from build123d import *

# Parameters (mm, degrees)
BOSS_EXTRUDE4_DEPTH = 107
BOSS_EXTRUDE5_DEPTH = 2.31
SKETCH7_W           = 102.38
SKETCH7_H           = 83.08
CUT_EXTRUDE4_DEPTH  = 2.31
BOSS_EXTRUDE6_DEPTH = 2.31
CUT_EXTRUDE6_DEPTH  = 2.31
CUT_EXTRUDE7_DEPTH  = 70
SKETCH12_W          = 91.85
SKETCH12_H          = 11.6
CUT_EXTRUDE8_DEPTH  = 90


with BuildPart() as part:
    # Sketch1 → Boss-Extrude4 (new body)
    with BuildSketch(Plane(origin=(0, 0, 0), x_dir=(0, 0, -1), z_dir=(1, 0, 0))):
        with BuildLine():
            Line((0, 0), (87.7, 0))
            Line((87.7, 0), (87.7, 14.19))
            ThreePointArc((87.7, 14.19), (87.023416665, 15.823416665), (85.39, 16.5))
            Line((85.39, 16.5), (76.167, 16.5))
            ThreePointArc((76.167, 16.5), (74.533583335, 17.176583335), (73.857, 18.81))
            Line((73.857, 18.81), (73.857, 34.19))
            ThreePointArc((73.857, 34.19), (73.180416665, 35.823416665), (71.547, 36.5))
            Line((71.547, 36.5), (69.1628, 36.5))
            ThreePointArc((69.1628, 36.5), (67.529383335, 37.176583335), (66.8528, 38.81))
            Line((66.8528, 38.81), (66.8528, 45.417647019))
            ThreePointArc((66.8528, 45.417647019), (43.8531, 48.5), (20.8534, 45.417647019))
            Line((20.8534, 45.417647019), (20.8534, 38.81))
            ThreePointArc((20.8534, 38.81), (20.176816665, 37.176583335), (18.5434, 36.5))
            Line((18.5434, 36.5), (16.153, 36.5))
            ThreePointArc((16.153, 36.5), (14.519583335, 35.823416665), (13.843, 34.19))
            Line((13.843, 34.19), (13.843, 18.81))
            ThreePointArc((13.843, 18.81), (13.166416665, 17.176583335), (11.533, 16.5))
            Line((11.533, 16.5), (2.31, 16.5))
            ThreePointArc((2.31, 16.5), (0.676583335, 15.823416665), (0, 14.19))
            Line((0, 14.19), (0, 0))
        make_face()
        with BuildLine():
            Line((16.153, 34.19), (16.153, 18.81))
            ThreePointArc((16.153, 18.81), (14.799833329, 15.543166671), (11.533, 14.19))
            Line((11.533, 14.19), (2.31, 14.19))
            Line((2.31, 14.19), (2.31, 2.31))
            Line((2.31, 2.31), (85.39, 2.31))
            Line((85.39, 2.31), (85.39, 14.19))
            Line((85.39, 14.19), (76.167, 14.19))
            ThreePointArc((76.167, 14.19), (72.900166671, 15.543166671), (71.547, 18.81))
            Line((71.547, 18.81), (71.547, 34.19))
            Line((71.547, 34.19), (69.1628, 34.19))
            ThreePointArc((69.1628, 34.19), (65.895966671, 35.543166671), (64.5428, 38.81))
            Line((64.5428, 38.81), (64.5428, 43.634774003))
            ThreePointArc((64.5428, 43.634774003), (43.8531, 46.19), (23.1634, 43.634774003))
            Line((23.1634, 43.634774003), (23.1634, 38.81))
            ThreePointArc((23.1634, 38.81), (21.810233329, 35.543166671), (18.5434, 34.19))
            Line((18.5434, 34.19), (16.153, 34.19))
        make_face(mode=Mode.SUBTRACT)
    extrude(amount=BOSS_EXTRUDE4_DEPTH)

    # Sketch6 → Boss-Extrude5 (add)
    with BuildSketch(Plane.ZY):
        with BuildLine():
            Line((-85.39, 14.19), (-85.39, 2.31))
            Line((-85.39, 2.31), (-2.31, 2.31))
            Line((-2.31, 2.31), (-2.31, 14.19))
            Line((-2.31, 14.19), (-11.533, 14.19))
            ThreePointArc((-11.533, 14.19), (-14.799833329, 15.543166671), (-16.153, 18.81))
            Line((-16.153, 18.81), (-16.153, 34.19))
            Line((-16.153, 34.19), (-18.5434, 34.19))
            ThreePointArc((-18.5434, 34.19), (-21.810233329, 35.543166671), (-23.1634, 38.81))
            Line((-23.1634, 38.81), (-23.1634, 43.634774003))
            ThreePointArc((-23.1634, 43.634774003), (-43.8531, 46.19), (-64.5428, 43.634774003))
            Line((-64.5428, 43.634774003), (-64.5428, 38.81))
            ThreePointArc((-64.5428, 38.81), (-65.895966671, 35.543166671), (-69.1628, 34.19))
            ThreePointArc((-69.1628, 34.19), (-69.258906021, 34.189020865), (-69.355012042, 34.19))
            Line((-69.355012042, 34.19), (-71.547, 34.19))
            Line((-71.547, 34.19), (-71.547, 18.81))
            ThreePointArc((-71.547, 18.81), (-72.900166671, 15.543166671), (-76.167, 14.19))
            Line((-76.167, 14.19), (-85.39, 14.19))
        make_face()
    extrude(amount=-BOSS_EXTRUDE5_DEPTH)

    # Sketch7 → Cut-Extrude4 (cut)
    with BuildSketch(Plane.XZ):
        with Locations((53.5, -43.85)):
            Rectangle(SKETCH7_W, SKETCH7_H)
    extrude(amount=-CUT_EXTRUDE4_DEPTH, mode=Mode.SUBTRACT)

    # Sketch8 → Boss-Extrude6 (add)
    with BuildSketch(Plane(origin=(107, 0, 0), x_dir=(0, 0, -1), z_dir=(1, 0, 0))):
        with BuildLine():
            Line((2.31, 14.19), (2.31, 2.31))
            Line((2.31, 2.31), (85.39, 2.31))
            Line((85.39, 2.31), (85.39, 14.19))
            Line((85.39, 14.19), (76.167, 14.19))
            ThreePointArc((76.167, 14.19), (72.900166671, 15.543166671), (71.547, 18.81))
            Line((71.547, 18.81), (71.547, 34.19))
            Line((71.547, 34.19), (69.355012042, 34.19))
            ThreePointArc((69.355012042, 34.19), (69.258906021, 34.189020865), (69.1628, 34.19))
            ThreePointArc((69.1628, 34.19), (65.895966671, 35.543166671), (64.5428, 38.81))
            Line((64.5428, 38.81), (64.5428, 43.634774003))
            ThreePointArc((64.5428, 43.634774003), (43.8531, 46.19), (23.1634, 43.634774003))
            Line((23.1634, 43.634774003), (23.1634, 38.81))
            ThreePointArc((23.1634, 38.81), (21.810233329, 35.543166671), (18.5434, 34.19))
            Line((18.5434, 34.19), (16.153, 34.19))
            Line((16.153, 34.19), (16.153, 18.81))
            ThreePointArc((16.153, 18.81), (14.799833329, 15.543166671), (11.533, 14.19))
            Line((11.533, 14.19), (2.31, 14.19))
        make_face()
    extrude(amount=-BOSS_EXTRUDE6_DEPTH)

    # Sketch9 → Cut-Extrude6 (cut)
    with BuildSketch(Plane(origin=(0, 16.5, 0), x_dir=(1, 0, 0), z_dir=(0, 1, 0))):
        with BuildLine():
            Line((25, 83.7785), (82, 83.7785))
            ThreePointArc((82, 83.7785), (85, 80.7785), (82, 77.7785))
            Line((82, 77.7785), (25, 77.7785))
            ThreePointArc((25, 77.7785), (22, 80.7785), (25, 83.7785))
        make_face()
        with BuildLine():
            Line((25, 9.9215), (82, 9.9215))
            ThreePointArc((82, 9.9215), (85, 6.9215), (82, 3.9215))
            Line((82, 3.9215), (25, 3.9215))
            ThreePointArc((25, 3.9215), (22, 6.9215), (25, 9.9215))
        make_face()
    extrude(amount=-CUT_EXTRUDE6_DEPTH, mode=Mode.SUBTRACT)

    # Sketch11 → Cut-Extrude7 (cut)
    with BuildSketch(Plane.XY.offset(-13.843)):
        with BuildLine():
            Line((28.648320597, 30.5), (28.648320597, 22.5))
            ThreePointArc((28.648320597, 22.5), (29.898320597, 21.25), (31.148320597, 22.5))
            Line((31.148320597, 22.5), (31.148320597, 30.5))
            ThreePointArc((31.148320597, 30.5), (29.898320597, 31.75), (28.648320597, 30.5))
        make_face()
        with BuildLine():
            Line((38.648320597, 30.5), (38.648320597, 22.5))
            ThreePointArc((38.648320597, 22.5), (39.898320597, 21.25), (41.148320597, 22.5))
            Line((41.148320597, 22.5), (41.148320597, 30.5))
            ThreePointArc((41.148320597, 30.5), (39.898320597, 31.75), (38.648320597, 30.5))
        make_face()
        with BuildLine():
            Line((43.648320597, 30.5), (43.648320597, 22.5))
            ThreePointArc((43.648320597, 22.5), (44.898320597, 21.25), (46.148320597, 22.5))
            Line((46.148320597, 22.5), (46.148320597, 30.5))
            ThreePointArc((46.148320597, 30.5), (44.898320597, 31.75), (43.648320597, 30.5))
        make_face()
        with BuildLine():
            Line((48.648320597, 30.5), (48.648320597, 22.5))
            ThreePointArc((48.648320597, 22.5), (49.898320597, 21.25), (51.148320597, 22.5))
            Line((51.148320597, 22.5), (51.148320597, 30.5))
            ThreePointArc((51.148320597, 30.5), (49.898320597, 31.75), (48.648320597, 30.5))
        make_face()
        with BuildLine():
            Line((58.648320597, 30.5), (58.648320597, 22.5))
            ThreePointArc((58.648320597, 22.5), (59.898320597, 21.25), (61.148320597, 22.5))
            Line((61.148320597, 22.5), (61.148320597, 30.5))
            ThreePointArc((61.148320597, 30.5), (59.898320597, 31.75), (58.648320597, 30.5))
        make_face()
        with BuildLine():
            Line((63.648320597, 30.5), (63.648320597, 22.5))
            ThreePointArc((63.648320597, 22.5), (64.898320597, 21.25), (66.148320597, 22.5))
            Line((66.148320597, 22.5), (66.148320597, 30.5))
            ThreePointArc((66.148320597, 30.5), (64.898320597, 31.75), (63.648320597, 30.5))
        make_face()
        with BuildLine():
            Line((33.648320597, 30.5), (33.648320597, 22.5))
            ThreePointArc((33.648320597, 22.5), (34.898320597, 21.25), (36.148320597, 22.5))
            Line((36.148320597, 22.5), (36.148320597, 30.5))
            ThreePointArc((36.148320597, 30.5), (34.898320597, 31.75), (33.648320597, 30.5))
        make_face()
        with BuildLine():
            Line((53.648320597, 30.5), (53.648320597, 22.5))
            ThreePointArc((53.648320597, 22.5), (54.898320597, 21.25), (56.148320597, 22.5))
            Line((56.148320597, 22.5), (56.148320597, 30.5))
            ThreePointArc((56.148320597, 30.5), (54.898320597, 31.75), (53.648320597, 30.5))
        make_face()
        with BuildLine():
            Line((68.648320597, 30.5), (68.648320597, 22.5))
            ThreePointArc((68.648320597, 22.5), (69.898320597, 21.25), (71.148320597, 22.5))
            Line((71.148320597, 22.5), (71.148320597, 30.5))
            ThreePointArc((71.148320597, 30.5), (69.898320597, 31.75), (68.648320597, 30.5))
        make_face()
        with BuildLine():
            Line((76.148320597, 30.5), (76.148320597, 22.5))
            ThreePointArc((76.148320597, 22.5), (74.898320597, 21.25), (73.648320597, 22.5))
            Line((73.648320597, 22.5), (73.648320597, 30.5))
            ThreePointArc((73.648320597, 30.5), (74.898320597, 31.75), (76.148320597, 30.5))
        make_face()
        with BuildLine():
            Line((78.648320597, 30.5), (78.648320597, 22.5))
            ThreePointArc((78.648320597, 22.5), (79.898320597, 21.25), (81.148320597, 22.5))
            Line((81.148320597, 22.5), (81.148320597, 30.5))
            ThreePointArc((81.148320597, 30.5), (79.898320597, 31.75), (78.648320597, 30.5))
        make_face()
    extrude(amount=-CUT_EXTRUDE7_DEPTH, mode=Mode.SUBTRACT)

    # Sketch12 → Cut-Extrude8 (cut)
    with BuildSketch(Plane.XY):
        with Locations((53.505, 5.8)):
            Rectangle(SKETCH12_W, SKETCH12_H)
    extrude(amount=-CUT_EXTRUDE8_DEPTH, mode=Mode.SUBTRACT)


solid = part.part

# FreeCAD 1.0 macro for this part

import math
import FreeCAD as App
import Part
import Sketcher

V = App.Vector


def add_polygon(sketch, points):
    """Adds a closed chain of lines whose ends are joined by coincident constraints."""
    first, n = sketch.GeometryCount, len(points)
    for a, b in zip(points, points[1:] + points[:1]):
        sketch.addGeometry(Part.LineSegment(App.Vector(*a, 0), App.Vector(*b, 0)), False)
    for i in range(n):
        sketch.addConstraint(Sketcher.Constraint("Coincident", first + i, 2, first + (i + 1) % n, 1))

doc = App.newDocument("Part")
params = doc.addObject("Spreadsheet::Sheet", "Params")
for row, (alias, value) in enumerate([
    ("sketch1_radius", "2.31 mm"),
    ("sketch1_height", "87.7 mm"),
    ("sketch1_width", "14.19 mm"),
    ("sketch1_width2", "11.88 mm"),
    ("pad1_length", "107 mm"),
    ("sketch2_radius", "4.62 mm"),
    ("sketch2_width", "11.88 mm"),
    ("sketch2_height", "83.08 mm"),
    ("pad2_length", "2.31 mm"),
    ("sketch3_width", "102.38 mm"),
    ("sketch3_height", "83.08 mm"),
    ("pocket1_length", "2.31 mm"),
    ("sketch4_radius", "4.62 mm"),
    ("sketch4_width", "11.88 mm"),
    ("sketch4_height", "83.08 mm"),
    ("pad3_length", "2.31 mm"),
    ("sketch5_radius", "3 mm"),
    ("sketch5_width", "57 mm"),
    ("pocket2_length", "2.31 mm"),
    ("sketch6_height", "8 mm"),
    ("sketch6_radius", "1.25 mm"),
    ("pocket3_length", "70 mm"),
    ("sketch7_height", "11.6 mm"),
    ("sketch7_width", "91.85 mm"),
    ("pocket4_length", "90 mm"),
], start=1):
    params.set(f"A{row}", alias)
    params.set(f"B{row}", "=" + value)
    params.setAlias(f"B{row}", alias)

body = doc.addObject("PartDesign::Body", "Body")

# Sketch on YZ plane
sketch1 = doc.addObject("Sketcher::SketchObject", "Sketch")
body.addObject(sketch1)
sketch1.AttachmentSupport = (doc.YZ_Plane, [""])
sketch1.MapMode = "FlatFace"
sketch1.addGeometry(Part.LineSegment(V(0, 0, 0), V(0, -87.7, 0)), False)
sketch1.addGeometry(Part.LineSegment(V(0, -87.7, 0), V(14.19, -87.7, 0)), False)
sketch1.addGeometry(Part.ArcOfCircle(Part.Circle(V(14.19, -85.39, 0), V(0, 0, 1), 2.31), math.radians(-90), math.radians(0)), False)
sketch1.addGeometry(Part.LineSegment(V(16.5, -85.39, 0), V(16.5, -76.167, 0)), False)
sketch1.addGeometry(Part.ArcOfCircle(Part.Circle(V(18.81, -76.167, 0), V(0, 0, 1), 2.31), math.radians(90), math.radians(180)), False)
sketch1.addGeometry(Part.LineSegment(V(18.81, -73.857, 0), V(34.19, -73.857, 0)), False)
sketch1.addGeometry(Part.ArcOfCircle(Part.Circle(V(34.19, -71.547, 0), V(0, 0, 1), 2.31), math.radians(-90), math.radians(0)), False)
sketch1.addGeometry(Part.LineSegment(V(36.5, -71.547, 0), V(36.5, -69.1628, 0)), False)
sketch1.addGeometry(Part.ArcOfCircle(Part.Circle(V(38.81, -69.1628, 0), V(0, 0, 1), 2.31), math.radians(90), math.radians(180)), False)
sketch1.addGeometry(Part.LineSegment(V(38.81, -66.8528, 0), V(45.417647, -66.8528, 0)), False)
sketch1.addGeometry(Part.ArcOfCircle(Part.Circle(V(-38.850006, -43.8531, 0), V(0, 0, 1), 87.350006), math.radians(-15.266265), math.radians(15.266265)), False)
sketch1.addGeometry(Part.LineSegment(V(45.417647, -20.8534, 0), V(38.81, -20.8534, 0)), False)
sketch1.addGeometry(Part.ArcOfCircle(Part.Circle(V(38.81, -18.5434, 0), V(0, 0, 1), 2.31), math.radians(180), math.radians(270)), False)
sketch1.addGeometry(Part.LineSegment(V(36.5, -18.5434, 0), V(36.5, -16.153, 0)), False)
sketch1.addGeometry(Part.ArcOfCircle(Part.Circle(V(34.19, -16.153, 0), V(0, 0, 1), 2.31), math.radians(0), math.radians(90)), False)
sketch1.addGeometry(Part.LineSegment(V(34.19, -13.843, 0), V(18.81, -13.843, 0)), False)
sketch1.addGeometry(Part.ArcOfCircle(Part.Circle(V(18.81, -11.533, 0), V(0, 0, 1), 2.31), math.radians(180), math.radians(270)), False)
sketch1.addGeometry(Part.LineSegment(V(16.5, -11.533, 0), V(16.5, -2.31, 0)), False)
sketch1.addGeometry(Part.ArcOfCircle(Part.Circle(V(14.19, -2.31, 0), V(0, 0, 1), 2.31), math.radians(0), math.radians(90)), False)
sketch1.addGeometry(Part.LineSegment(V(14.19, 0, 0), V(0, 0, 0)), False)
sketch1.addGeometry(Part.LineSegment(V(18.81, -16.153, 0), V(34.19, -16.153, 0)), False)
sketch1.addGeometry(Part.LineSegment(V(34.19, -16.153, 0), V(34.19, -18.5434, 0)), False)
sketch1.addGeometry(Part.ArcOfCircle(Part.Circle(V(38.81, -18.5434, 0), V(0, 0, 1), 4.62), math.radians(180), math.radians(270)), False)
sketch1.addGeometry(Part.LineSegment(V(38.81, -23.1634, 0), V(43.634774, -23.1634, 0)), False)
sketch1.addGeometry(Part.ArcOfCircle(Part.Circle(V(-38.850006, -43.8531, 0), V(0, 0, 1), 85.040006), math.radians(-14.081021), math.radians(14.081021)), False)
sketch1.addGeometry(Part.LineSegment(V(43.634774, -64.5428, 0), V(38.81, -64.5428, 0)), False)
sketch1.addGeometry(Part.ArcOfCircle(Part.Circle(V(38.81, -69.1628, 0), V(0, 0, 1), 4.62), math.radians(90), math.radians(180)), False)
sketch1.addGeometry(Part.LineSegment(V(34.19, -69.1628, 0), V(34.19, -71.547, 0)), False)
sketch1.addGeometry(Part.LineSegment(V(34.19, -71.547, 0), V(18.81, -71.547, 0)), False)
sketch1.addGeometry(Part.ArcOfCircle(Part.Circle(V(18.81, -76.167, 0), V(0, 0, 1), 4.62), math.radians(90), math.radians(180)), False)
sketch1.addGeometry(Part.LineSegment(V(14.19, -76.167, 0), V(14.19, -85.39, 0)), False)
sketch1.addGeometry(Part.LineSegment(V(14.19, -85.39, 0), V(2.31, -85.39, 0)), False)
sketch1.addGeometry(Part.LineSegment(V(2.31, -85.39, 0), V(2.31, -2.31, 0)), False)
sketch1.addGeometry(Part.LineSegment(V(2.31, -2.31, 0), V(14.19, -2.31, 0)), False)
sketch1.addGeometry(Part.LineSegment(V(14.19, -2.31, 0), V(14.19, -11.533, 0)), False)
sketch1.addGeometry(Part.ArcOfCircle(Part.Circle(V(18.81, -11.533, 0), V(0, 0, 1), 4.62), math.radians(180), math.radians(270)), False)
sketch1.addConstraint(Sketcher.Constraint("Coincident", 0, 2, 1, 1))
sketch1.addConstraint(Sketcher.Constraint("Tangent", 1, 2, 2, 1))
sketch1.addConstraint(Sketcher.Constraint("Tangent", 2, 2, 3, 1))
sketch1.addConstraint(Sketcher.Constraint("Tangent", 3, 2, 4, 2))
sketch1.addConstraint(Sketcher.Constraint("Tangent", 4, 1, 5, 1))
sketch1.addConstraint(Sketcher.Constraint("Tangent", 5, 2, 6, 1))
sketch1.addConstraint(Sketcher.Constraint("Tangent", 6, 2, 7, 1))
sketch1.addConstraint(Sketcher.Constraint("Tangent", 7, 2, 8, 2))
sketch1.addConstraint(Sketcher.Constraint("Tangent", 8, 1, 9, 1))
sketch1.addConstraint(Sketcher.Constraint("Coincident", 9, 2, 10, 1))
sketch1.addConstraint(Sketcher.Constraint("Coincident", 10, 2, 11, 1))
sketch1.addConstraint(Sketcher.Constraint("Tangent", 11, 2, 12, 2))
sketch1.addConstraint(Sketcher.Constraint("Tangent", 12, 1, 13, 1))
sketch1.addConstraint(Sketcher.Constraint("Tangent", 13, 2, 14, 1))
sketch1.addConstraint(Sketcher.Constraint("Tangent", 14, 2, 15, 1))
sketch1.addConstraint(Sketcher.Constraint("Tangent", 15, 2, 16, 2))
sketch1.addConstraint(Sketcher.Constraint("Tangent", 16, 1, 17, 1))
sketch1.addConstraint(Sketcher.Constraint("Tangent", 17, 2, 18, 1))
sketch1.addConstraint(Sketcher.Constraint("Tangent", 18, 2, 19, 1))
sketch1.addConstraint(Sketcher.Constraint("Coincident", 19, 2, 0, 1))
sketch1.addConstraint(Sketcher.Constraint("Coincident", 20, 2, 21, 1))
sketch1.addConstraint(Sketcher.Constraint("Tangent", 21, 2, 22, 1))
sketch1.addConstraint(Sketcher.Constraint("Tangent", 22, 2, 23, 1))
sketch1.addConstraint(Sketcher.Constraint("Coincident", 23, 2, 24, 2))
sketch1.addConstraint(Sketcher.Constraint("Coincident", 24, 1, 25, 1))
sketch1.addConstraint(Sketcher.Constraint("Tangent", 25, 2, 26, 1))
sketch1.addConstraint(Sketcher.Constraint("Tangent", 26, 2, 27, 1))
sketch1.addConstraint(Sketcher.Constraint("Coincident", 27, 2, 28, 1))
sketch1.addConstraint(Sketcher.Constraint("Tangent", 28, 2, 29, 1))
sketch1.addConstraint(Sketcher.Constraint("Tangent", 29, 2, 30, 1))
sketch1.addConstraint(Sketcher.Constraint("Coincident", 30, 2, 31, 1))
sketch1.addConstraint(Sketcher.Constraint("Coincident", 31, 2, 32, 1))
sketch1.addConstraint(Sketcher.Constraint("Coincident", 32, 2, 33, 1))
sketch1.addConstraint(Sketcher.Constraint("Coincident", 33, 2, 34, 1))
sketch1.addConstraint(Sketcher.Constraint("Tangent", 34, 2, 35, 1))
sketch1.addConstraint(Sketcher.Constraint("Tangent", 35, 2, 20, 1))
sketch1.addConstraint(Sketcher.Constraint("Vertical", 0))
sketch1.addConstraint(Sketcher.Constraint("Horizontal", 1))
sketch1.addConstraint(Sketcher.Constraint("Vertical", 3))
sketch1.addConstraint(Sketcher.Constraint("Horizontal", 5))
sketch1.addConstraint(Sketcher.Constraint("Vertical", 7))
sketch1.addConstraint(Sketcher.Constraint("Horizontal", 9))
sketch1.addConstraint(Sketcher.Constraint("Horizontal", 11))
sketch1.addConstraint(Sketcher.Constraint("Vertical", 13))
sketch1.addConstraint(Sketcher.Constraint("Horizontal", 15))
sketch1.addConstraint(Sketcher.Constraint("Vertical", 17))
sketch1.addConstraint(Sketcher.Constraint("Horizontal", 19))
sketch1.addConstraint(Sketcher.Constraint("Horizontal", 20))
sketch1.addConstraint(Sketcher.Constraint("Vertical", 21))
sketch1.addConstraint(Sketcher.Constraint("Horizontal", 23))
sketch1.addConstraint(Sketcher.Constraint("Horizontal", 25))
sketch1.addConstraint(Sketcher.Constraint("Vertical", 27))
sketch1.addConstraint(Sketcher.Constraint("Horizontal", 28))
sketch1.addConstraint(Sketcher.Constraint("Vertical", 30))
sketch1.addConstraint(Sketcher.Constraint("Horizontal", 31))
sketch1.addConstraint(Sketcher.Constraint("Vertical", 32))
sketch1.addConstraint(Sketcher.Constraint("Horizontal", 33))
sketch1.addConstraint(Sketcher.Constraint("Vertical", 34))
sketch1.addConstraint(Sketcher.Constraint("Coincident", 19, 2, -1, 1))
sketch1.addConstraint(Sketcher.Constraint("Coincident", 22, 3, 12, 3))
sketch1.addConstraint(Sketcher.Constraint("Coincident", 24, 3, 10, 3))
sketch1.addConstraint(Sketcher.Constraint("Coincident", 26, 3, 8, 3))
sketch1.addConstraint(Sketcher.Constraint("Coincident", 29, 3, 4, 3))
sketch1.addConstraint(Sketcher.Constraint("Coincident", 35, 3, 16, 3))
sketch1.addConstraint(Sketcher.Constraint("Coincident", 20, 2, 14, 3))
sketch1.addConstraint(Sketcher.Constraint("Coincident", 27, 2, 6, 3))
sketch1.addConstraint(Sketcher.Constraint("Coincident", 30, 2, 2, 3))
sketch1.addConstraint(Sketcher.Constraint("Coincident", 33, 2, 18, 3))
sketch1.addConstraint(Sketcher.Constraint("Equal", 2, 4))
sketch1.addConstraint(Sketcher.Constraint("Equal", 6, 8))
sketch1.addConstraint(Sketcher.Constraint("Equal", 8, 12))
sketch1.addConstraint(Sketcher.Constraint("Equal", 12, 14))
sketch1.addConstraint(Sketcher.Constraint("Equal", 14, 16))
sketch1.addConstraint(Sketcher.Constraint("Vertical", 8, 3, 12, 3))
sketch1.addConstraint(Sketcher.Constraint("Vertical", 4, 3, 16, 3))
sketch1.addConstraint(Sketcher.Constraint("Vertical", 9, 2, 10, 2))
sketch1.addConstraint(Sketcher.Constraint("Equal", 3, 17))
sketch1.addConstraint(Sketcher.Constraint("Radius", 2, 2.31))
sketch1.addConstraint(Sketcher.Constraint("DistanceY", 0, 2, 0, 1, 87.7))
sketch1.addConstraint(Sketcher.Constraint("DistanceX", 2, 3, 6, 3, 20.0))
sketch1.addConstraint(Sketcher.Constraint("DistanceX", 1, 1, 1, 2, 14.19))
sketch1.addConstraint(Sketcher.Constraint("DistanceX", 31, 2, 31, 1, 11.88))
sketch1.addConstraint(Sketcher.Constraint("DistanceY", 3, 1, 3, 2, 9.223))
sketch1.addConstraint(Sketcher.Constraint("DistanceY", 7, 1, 7, 2, 2.3842))
sketch1.addConstraint(Sketcher.Constraint("DistanceY", 13, 1, 13, 2, 2.3904))
sketch1.addConstraint(Sketcher.Constraint("Radius", 10, 87.350006))
sketch1.addConstraint(Sketcher.Constraint("Radius", 24, 85.040006))
sketch1.addConstraint(Sketcher.Constraint("DistanceX", 9, 1, 9, 2, 6.607647))
sketch1.setExpression("Constraints[77]", "Params.sketch1_radius")
sketch1.setExpression("Constraints[78]", "Params.sketch1_height")
sketch1.setExpression("Constraints[80]", "Params.sketch1_width")
sketch1.setExpression("Constraints[81]", "Params.sketch1_width2")
pad1 = doc.addObject("PartDesign::Pad", "Pad")
body.addObject(pad1)
pad1.Profile = sketch1
pad1.setExpression("Length", "Params.pad1_length")

# Sketch on YZ plane
sketch2 = doc.addObject("Sketcher::SketchObject", "Sketch001")
body.addObject(sketch2)
sketch2.AttachmentSupport = (doc.YZ_Plane, [""])
sketch2.MapMode = "FlatFace"
sketch2.addGeometry(Part.LineSegment(V(14.19, -85.39, 0), V(2.31, -85.39, 0)), False)
sketch2.addGeometry(Part.LineSegment(V(2.31, -85.39, 0), V(2.31, -2.31, 0)), False)
sketch2.addGeometry(Part.LineSegment(V(2.31, -2.31, 0), V(14.19, -2.31, 0)), False)
sketch2.addGeometry(Part.LineSegment(V(14.19, -2.31, 0), V(14.19, -11.533, 0)), False)
sketch2.addGeometry(Part.ArcOfCircle(Part.Circle(V(18.81, -11.533, 0), V(0, 0, 1), 4.62), math.radians(180), math.radians(270)), False)
sketch2.addGeometry(Part.LineSegment(V(18.81, -16.153, 0), V(34.19, -16.153, 0)), False)
sketch2.addGeometry(Part.LineSegment(V(34.19, -16.153, 0), V(34.19, -18.5434, 0)), False)
sketch2.addGeometry(Part.ArcOfCircle(Part.Circle(V(38.81, -18.5434, 0), V(0, 0, 1), 4.62), math.radians(180), math.radians(270)), False)
sketch2.addGeometry(Part.LineSegment(V(38.81, -23.1634, 0), V(43.634774, -23.1634, 0)), False)
sketch2.addGeometry(Part.ArcOfCircle(Part.Circle(V(-38.850006, -43.8531, 0), V(0, 0, 1), 85.040006), math.radians(-14.081021), math.radians(14.081021)), False)
sketch2.addGeometry(Part.LineSegment(V(43.634774, -64.5428, 0), V(38.81, -64.5428, 0)), False)
sketch2.addGeometry(Part.ArcOfCircle(Part.Circle(V(38.81, -69.1628, 0), V(0, 0, 1), 4.62), math.radians(90), math.radians(180)), False)
sketch2.addGeometry(Part.ArcOfCircle(Part.Circle(V(38.906106, -69.258906, 0), V(0, 0, 1), 4.717085), math.radians(178.832573), math.radians(181.167427)), False)
sketch2.addGeometry(Part.LineSegment(V(34.19, -69.355012, 0), V(34.19, -71.547, 0)), False)
sketch2.addGeometry(Part.LineSegment(V(34.19, -71.547, 0), V(18.81, -71.547, 0)), False)
sketch2.addGeometry(Part.ArcOfCircle(Part.Circle(V(18.81, -76.167, 0), V(0, 0, 1), 4.62), math.radians(90), math.radians(180)), False)
sketch2.addGeometry(Part.LineSegment(V(14.19, -76.167, 0), V(14.19, -85.39, 0)), False)
sketch2.addConstraint(Sketcher.Constraint("Coincident", 0, 2, 1, 1))
sketch2.addConstraint(Sketcher.Constraint("Coincident", 1, 2, 2, 1))
sketch2.addConstraint(Sketcher.Constraint("Coincident", 2, 2, 3, 1))
sketch2.addConstraint(Sketcher.Constraint("Tangent", 3, 2, 4, 1))
sketch2.addConstraint(Sketcher.Constraint("Tangent", 4, 2, 5, 1))
sketch2.addConstraint(Sketcher.Constraint("Coincident", 5, 2, 6, 1))
sketch2.addConstraint(Sketcher.Constraint("Tangent", 6, 2, 7, 1))
sketch2.addConstraint(Sketcher.Constraint("Tangent", 7, 2, 8, 1))
sketch2.addConstraint(Sketcher.Constraint("Coincident", 8, 2, 9, 2))
sketch2.addConstraint(Sketcher.Constraint("Coincident", 9, 1, 10, 1))
sketch2.addConstraint(Sketcher.Constraint("Tangent", 10, 2, 11, 1))
sketch2.addConstraint(Sketcher.Constraint("Coincident", 11, 2, 12, 1))
sketch2.addConstraint(Sketcher.Constraint("Coincident", 12, 2, 13, 1))
sketch2.addConstraint(Sketcher.Constraint("Coincident", 13, 2, 14, 1))
sketch2.addConstraint(Sketcher.Constraint("Tangent", 14, 2, 15, 1))
sketch2.addConstraint(Sketcher.Constraint("Tangent", 15, 2, 16, 1))
sketch2.addConstraint(Sketcher.Constraint("Coincident", 16, 2, 0, 1))
sketch2.addConstraint(Sketcher.Constraint("Horizontal", 0))
sketch2.addConstraint(Sketcher.Constraint("Vertical", 1))
sketch2.addConstraint(Sketcher.Constraint("Horizontal", 2))
sketch2.addConstraint(Sketcher.Constraint("Vertical", 3))
sketch2.addConstraint(Sketcher.Constraint("Horizontal", 5))
sketch2.addConstraint(Sketcher.Constraint("Vertical", 6))
sketch2.addConstraint(Sketcher.Constraint("Horizontal", 8))
sketch2.addConstraint(Sketcher.Constraint("Horizontal", 10))
sketch2.addConstraint(Sketcher.Constraint("Vertical", 13))
sketch2.addConstraint(Sketcher.Constraint("Horizontal", 14))
sketch2.addConstraint(Sketcher.Constraint("Vertical", 16))
sketch2.addConstraint(Sketcher.Constraint("Equal", 4, 7))
sketch2.addConstraint(Sketcher.Constraint("Equal", 7, 11))
sketch2.addConstraint(Sketcher.Constraint("Equal", 11, 15))
sketch2.addConstraint(Sketcher.Constraint("Vertical", 7, 3, 11, 3))
sketch2.addConstraint(Sketcher.Constraint("Vertical", 4, 3, 15, 3))
sketch2.addConstraint(Sketcher.Constraint("Vertical", 8, 2, 9, 1))
sketch2.addConstraint(Sketcher.Constraint("Vertical", 11, 2, 12, 2))
sketch2.addConstraint(Sketcher.Constraint("Equal", 3, 16))
sketch2.addConstraint(Sketcher.Constraint("Radius", 4, 4.62))
sketch2.addConstraint(Sketcher.Constraint("DistanceX", 4, 3, 7, 3, 20.0))
sketch2.addConstraint(Sketcher.Constraint("DistanceX", 0, 2, 0, 1, 11.88))
sketch2.addConstraint(Sketcher.Constraint("DistanceY", 1, 1, 1, 2, 83.08))
sketch2.addConstraint(Sketcher.Constraint("DistanceY", 3, 2, 3, 1, 9.223))
sketch2.addConstraint(Sketcher.Constraint("DistanceX", -1, 1, 4, 3, 18.81))
sketch2.addConstraint(Sketcher.Constraint("DistanceY", 0, 2, -1, 1, 85.39))
sketch2.addConstraint(Sketcher.Constraint("DistanceY", 11, 2, 10, 2, 4.62))
sketch2.addConstraint(Sketcher.Constraint("DistanceY", 6, 2, 6, 1, 2.3904))
sketch2.addConstraint(Sketcher.Constraint("Radius", 9, 85.040006))
sketch2.addConstraint(Sketcher.Constraint("Radius", 12, 4.717085))
sketch2.addConstraint(Sketcher.Constraint("DistanceY", 9, 3, -1, 1, 43.8531))
sketch2.addConstraint(Sketcher.Constraint("DistanceX", 8, 1, 8, 2, 4.824774))
sketch2.addConstraint(Sketcher.Constraint("DistanceY", 13, 2, 13, 1, 2.191988))
sketch2.setExpression("Constraints[36]", "Params.sketch2_radius")
sketch2.setExpression("Constraints[38]", "Params.sketch2_width")
sketch2.setExpression("Constraints[39]", "Params.sketch2_height")
pad2 = doc.addObject("PartDesign::Pad", "Pad001")
body.addObject(pad2)
pad2.Profile = sketch2
pad2.setExpression("Length", "Params.pad2_length")

# Sketch on XZ plane
sketch3 = doc.addObject("Sketcher::SketchObject", "Sketch002")
body.addObject(sketch3)
sketch3.AttachmentSupport = (doc.XZ_Plane, [""])
sketch3.MapMode = "FlatFace"
add_polygon(sketch3, [(2.31, -2.31), (2.31, -85.39), (104.69, -85.39), (104.69, -2.31)])  # lines 0-3
sketch3.addConstraint(Sketcher.Constraint("Vertical", 0))
sketch3.addConstraint(Sketcher.Constraint("Horizontal", 1))
sketch3.addConstraint(Sketcher.Constraint("Vertical", 2))
sketch3.addConstraint(Sketcher.Constraint("Horizontal", 3))
sketch3.addConstraint(Sketcher.Constraint("DistanceX", 1, 1, 1, 2, 102.38))
sketch3.addConstraint(Sketcher.Constraint("DistanceY", 0, 2, 0, 1, 83.08))
sketch3.addConstraint(Sketcher.Constraint("DistanceX", -1, 1, 0, 2, 2.31))
sketch3.addConstraint(Sketcher.Constraint("DistanceY", 0, 2, -1, 1, 85.39))
sketch3.setExpression("Constraints[8]", "Params.sketch3_width")
sketch3.setExpression("Constraints[9]", "Params.sketch3_height")
pocket1 = doc.addObject("PartDesign::Pocket", "Pocket")
body.addObject(pocket1)
pocket1.Profile = sketch3
pocket1.setExpression("Length", "Params.pocket1_length")

# Sketch on YZ plane
sketch4 = doc.addObject("Sketcher::SketchObject", "Sketch003")
body.addObject(sketch4)
sketch4.AttachmentSupport = (doc.YZ_Plane, [""])
sketch4.MapMode = "FlatFace"
sketch4.AttachmentOffset = App.Placement(V(0, 0, 107), App.Rotation())
sketch4.addGeometry(Part.LineSegment(V(14.19, -2.31, 0), V(2.31, -2.31, 0)), False)
sketch4.addGeometry(Part.LineSegment(V(2.31, -2.31, 0), V(2.31, -85.39, 0)), False)
sketch4.addGeometry(Part.LineSegment(V(2.31, -85.39, 0), V(14.19, -85.39, 0)), False)
sketch4.addGeometry(Part.LineSegment(V(14.19, -85.39, 0), V(14.19, -76.167, 0)), False)
sketch4.addGeometry(Part.ArcOfCircle(Part.Circle(V(18.81, -76.167, 0), V(0, 0, 1), 4.62), math.radians(90), math.radians(180)), False)
sketch4.addGeometry(Part.LineSegment(V(18.81, -71.547, 0), V(34.19, -71.547, 0)), False)
sketch4.addGeometry(Part.LineSegment(V(34.19, -71.547, 0), V(34.19, -69.355012, 0)), False)
sketch4.addGeometry(Part.ArcOfCircle(Part.Circle(V(38.906106, -69.258906, 0), V(0, 0, 1), 4.717085), math.radians(178.832573), math.radians(181.167427)), False)
sketch4.addGeometry(Part.ArcOfCircle(Part.Circle(V(38.81, -69.1628, 0), V(0, 0, 1), 4.62), math.radians(90), math.radians(180)), False)
sketch4.addGeometry(Part.LineSegment(V(38.81, -64.5428, 0), V(43.634774, -64.5428, 0)), False)
sketch4.addGeometry(Part.ArcOfCircle(Part.Circle(V(-38.850006, -43.8531, 0), V(0, 0, 1), 85.040006), math.radians(-14.081021), math.radians(14.081021)), False)
sketch4.addGeometry(Part.LineSegment(V(43.634774, -23.1634, 0), V(38.81, -23.1634, 0)), False)
sketch4.addGeometry(Part.ArcOfCircle(Part.Circle(V(38.81, -18.5434, 0), V(0, 0, 1), 4.62), math.radians(180), math.radians(270)), False)
sketch4.addGeometry(Part.LineSegment(V(34.19, -18.5434, 0), V(34.19, -16.153, 0)), False)
sketch4.addGeometry(Part.LineSegment(V(34.19, -16.153, 0), V(18.81, -16.153, 0)), False)
sketch4.addGeometry(Part.ArcOfCircle(Part.Circle(V(18.81, -11.533, 0), V(0, 0, 1), 4.62), math.radians(180), math.radians(270)), False)
sketch4.addGeometry(Part.LineSegment(V(14.19, -11.533, 0), V(14.19, -2.31, 0)), False)
sketch4.addConstraint(Sketcher.Constraint("Coincident", 0, 2, 1, 1))
sketch4.addConstraint(Sketcher.Constraint("Coincident", 1, 2, 2, 1))
sketch4.addConstraint(Sketcher.Constraint("Coincident", 2, 2, 3, 1))
sketch4.addConstraint(Sketcher.Constraint("Tangent", 3, 2, 4, 2))
sketch4.addConstraint(Sketcher.Constraint("Tangent", 4, 1, 5, 1))
sketch4.addConstraint(Sketcher.Constraint("Coincident", 5, 2, 6, 1))
sketch4.addConstraint(Sketcher.Constraint("Coincident", 6, 2, 7, 2))
sketch4.addConstraint(Sketcher.Constraint("Coincident", 7, 1, 8, 2))
sketch4.addConstraint(Sketcher.Constraint("Tangent", 8, 1, 9, 1))
sketch4.addConstraint(Sketcher.Constraint("Coincident", 9, 2, 10, 1))
sketch4.addConstraint(Sketcher.Constraint("Coincident", 10, 2, 11, 1))
sketch4.addConstraint(Sketcher.Constraint("Tangent", 11, 2, 12, 2))
sketch4.addConstraint(Sketcher.Constraint("Tangent", 12, 1, 13, 1))
sketch4.addConstraint(Sketcher.Constraint("Coincident", 13, 2, 14, 1))
sketch4.addConstraint(Sketcher.Constraint("Tangent", 14, 2, 15, 2))
sketch4.addConstraint(Sketcher.Constraint("Tangent", 15, 1, 16, 1))
sketch4.addConstraint(Sketcher.Constraint("Coincident", 16, 2, 0, 1))
sketch4.addConstraint(Sketcher.Constraint("Horizontal", 0))
sketch4.addConstraint(Sketcher.Constraint("Vertical", 1))
sketch4.addConstraint(Sketcher.Constraint("Horizontal", 2))
sketch4.addConstraint(Sketcher.Constraint("Vertical", 3))
sketch4.addConstraint(Sketcher.Constraint("Horizontal", 5))
sketch4.addConstraint(Sketcher.Constraint("Vertical", 6))
sketch4.addConstraint(Sketcher.Constraint("Horizontal", 9))
sketch4.addConstraint(Sketcher.Constraint("Horizontal", 11))
sketch4.addConstraint(Sketcher.Constraint("Vertical", 13))
sketch4.addConstraint(Sketcher.Constraint("Horizontal", 14))
sketch4.addConstraint(Sketcher.Constraint("Vertical", 16))
sketch4.addConstraint(Sketcher.Constraint("Equal", 4, 8))
sketch4.addConstraint(Sketcher.Constraint("Equal", 8, 12))
sketch4.addConstraint(Sketcher.Constraint("Equal", 12, 15))
sketch4.addConstraint(Sketcher.Constraint("Horizontal", 8, 3, 7, 1))
sketch4.addConstraint(Sketcher.Constraint("Vertical", 8, 3, 12, 3))
sketch4.addConstraint(Sketcher.Constraint("Vertical", 4, 3, 15, 3))
sketch4.addConstraint(Sketcher.Constraint("Vertical", 6, 2, 7, 1))
sketch4.addConstraint(Sketcher.Constraint("Vertical", 9, 2, 10, 2))
sketch4.addConstraint(Sketcher.Constraint("Equal", 3, 16))
sketch4.addConstraint(Sketcher.Constraint("Radius", 4, 4.62))
sketch4.addConstraint(Sketcher.Constraint("DistanceX", 4, 3, 8, 3, 20.0))
sketch4.addConstraint(Sketcher.Constraint("DistanceX", 0, 2, 0, 1, 11.88))
sketch4.addConstraint(Sketcher.Constraint("DistanceY", 1, 2, 1, 1, 83.08))
sketch4.addConstraint(Sketcher.Constraint("DistanceY", 3, 1, 3, 2, 9.223))
sketch4.addConstraint(Sketcher.Constraint("DistanceX", -1, 1, 4, 3, 18.81))
sketch4.addConstraint(Sketcher.Constraint("DistanceY", 0, 2, -1, 1, 2.31))
sketch4.addConstraint(Sketcher.Constraint("DistanceY", 13, 1, 13, 2, 2.3904))
sketch4.addConstraint(Sketcher.Constraint("Radius", 7, 4.717085))
sketch4.addConstraint(Sketcher.Constraint("Radius", 10, 85.040006))
sketch4.addConstraint(Sketcher.Constraint("DistanceY", 8, 3, -1, 1, 69.1628))
sketch4.addConstraint(Sketcher.Constraint("DistanceX", 9, 1, 9, 2, 4.824774))
sketch4.addConstraint(Sketcher.Constraint("DistanceY", 6, 1, 6, 2, 2.191988))
sketch4.setExpression("Constraints[37]", "Params.sketch4_radius")
sketch4.setExpression("Constraints[39]", "Params.sketch4_width")
sketch4.setExpression("Constraints[40]", "Params.sketch4_height")
pad3 = doc.addObject("PartDesign::Pad", "Pad002")
body.addObject(pad3)
pad3.Profile = sketch4
pad3.setExpression("Length", "Params.pad3_length")
pad3.Reversed = True

# Sketch on XZ plane
sketch5 = doc.addObject("Sketcher::SketchObject", "Sketch004")
body.addObject(sketch5)
sketch5.AttachmentSupport = (doc.XZ_Plane, [""])
sketch5.MapMode = "FlatFace"
sketch5.AttachmentOffset = App.Placement(V(0, 0, -16.5), App.Rotation())
sketch5.addGeometry(Part.LineSegment(V(82, -83.7785, 0), V(25, -83.7785, 0)), False)
sketch5.addGeometry(Part.ArcOfCircle(Part.Circle(V(25, -80.7785, 0), V(0, 0, 1), 3), math.radians(90), math.radians(270)), False)
sketch5.addGeometry(Part.LineSegment(V(25, -77.7785, 0), V(82, -77.7785, 0)), False)
sketch5.addGeometry(Part.ArcOfCircle(Part.Circle(V(82, -80.7785, 0), V(0, 0, 1), 3), math.radians(-90), math.radians(90)), False)
sketch5.addGeometry(Part.LineSegment(V(82, -9.9215, 0), V(25, -9.9215, 0)), False)
sketch5.addGeometry(Part.ArcOfCircle(Part.Circle(V(25, -6.9215, 0), V(0, 0, 1), 3), math.radians(90), math.radians(270)), False)
sketch5.addGeometry(Part.LineSegment(V(25, -3.9215, 0), V(82, -3.9215, 0)), False)
sketch5.addGeometry(Part.ArcOfCircle(Part.Circle(V(82, -6.9215, 0), V(0, 0, 1), 3), math.radians(-90), math.radians(90)), False)
sketch5.addConstraint(Sketcher.Constraint("Tangent", 0, 2, 1, 2))
sketch5.addConstraint(Sketcher.Constraint("Tangent", 1, 1, 2, 1))
sketch5.addConstraint(Sketcher.Constraint("Tangent", 2, 2, 3, 2))
sketch5.addConstraint(Sketcher.Constraint("Tangent", 3, 1, 0, 1))
sketch5.addConstraint(Sketcher.Constraint("Tangent", 4, 2, 5, 2))
sketch5.addConstraint(Sketcher.Constraint("Tangent", 5, 1, 6, 1))
sketch5.addConstraint(Sketcher.Constraint("Tangent", 6, 2, 7, 2))
sketch5.addConstraint(Sketcher.Constraint("Tangent", 7, 1, 4, 1))
sketch5.addConstraint(Sketcher.Constraint("Horizontal", 0))
sketch5.addConstraint(Sketcher.Constraint("Horizontal", 2))
sketch5.addConstraint(Sketcher.Constraint("Horizontal", 4))
sketch5.addConstraint(Sketcher.Constraint("Horizontal", 6))
sketch5.addConstraint(Sketcher.Constraint("Equal", 3, 5))
sketch5.addConstraint(Sketcher.Constraint("Vertical", 1, 3, 5, 3))
sketch5.addConstraint(Sketcher.Constraint("Vertical", 3, 3, 7, 3))
sketch5.addConstraint(Sketcher.Constraint("Radius", 1, 3.0))
sketch5.addConstraint(Sketcher.Constraint("DistanceX", 0, 2, 0, 1, 57.0))
sketch5.addConstraint(Sketcher.Constraint("DistanceX", -1, 1, 1, 3, 25.0))
sketch5.addConstraint(Sketcher.Constraint("DistanceY", 1, 3, 5, 3, 73.857))
sketch5.addConstraint(Sketcher.Constraint("DistanceY", 1, 3, -1, 1, 80.7785))
sketch5.setExpression("Constraints[15]", "Params.sketch5_radius")
sketch5.setExpression("Constraints[16]", "Params.sketch5_width")
pocket2 = doc.addObject("PartDesign::Pocket", "Pocket001")
body.addObject(pocket2)
pocket2.Profile = sketch5
pocket2.setExpression("Length", "Params.pocket2_length")
pocket2.Reversed = True

# Sketch on XY plane
sketch6 = doc.addObject("Sketcher::SketchObject", "Sketch005")
body.addObject(sketch6)
sketch6.AttachmentSupport = (doc.XY_Plane, [""])
sketch6.MapMode = "FlatFace"
sketch6.AttachmentOffset = App.Placement(V(0, 0, -13.843), App.Rotation())
sketch6.addGeometry(Part.LineSegment(V(28.648321, 30.5, 0), V(28.648321, 22.5, 0)), False)
sketch6.addGeometry(Part.ArcOfCircle(Part.Circle(V(29.898321, 22.5, 0), V(0, 0, 1), 1.25), math.radians(180), math.radians(360)), False)
sketch6.addGeometry(Part.LineSegment(V(31.148321, 22.5, 0), V(31.148321, 30.5, 0)), False)
sketch6.addGeometry(Part.ArcOfCircle(Part.Circle(V(29.898321, 30.5, 0), V(0, 0, 1), 1.25), math.radians(0), math.radians(180)), False)
sketch6.addGeometry(Part.LineSegment(V(38.648321, 30.5, 0), V(38.648321, 22.5, 0)), False)
sketch6.addGeometry(Part.ArcOfCircle(Part.Circle(V(39.898321, 22.5, 0), V(0, 0, 1), 1.25), math.radians(180), math.radians(360)), False)
sketch6.addGeometry(Part.LineSegment(V(41.148321, 22.5, 0), V(41.148321, 30.5, 0)), False)
sketch6.addGeometry(Part.ArcOfCircle(Part.Circle(V(39.898321, 30.5, 0), V(0, 0, 1), 1.25), math.radians(0), math.radians(180)), False)
sketch6.addGeometry(Part.LineSegment(V(43.648321, 30.5, 0), V(43.648321, 22.5, 0)), False)
sketch6.addGeometry(Part.ArcOfCircle(Part.Circle(V(44.898321, 22.5, 0), V(0, 0, 1), 1.25), math.radians(180), math.radians(360)), False)
sketch6.addGeometry(Part.LineSegment(V(46.148321, 22.5, 0), V(46.148321, 30.5, 0)), False)
sketch6.addGeometry(Part.ArcOfCircle(Part.Circle(V(44.898321, 30.5, 0), V(0, 0, 1), 1.25), math.radians(0), math.radians(180)), False)
sketch6.addGeometry(Part.LineSegment(V(48.648321, 30.5, 0), V(48.648321, 22.5, 0)), False)
sketch6.addGeometry(Part.ArcOfCircle(Part.Circle(V(49.898321, 22.5, 0), V(0, 0, 1), 1.25), math.radians(180), math.radians(360)), False)
sketch6.addGeometry(Part.LineSegment(V(51.148321, 22.5, 0), V(51.148321, 30.5, 0)), False)
sketch6.addGeometry(Part.ArcOfCircle(Part.Circle(V(49.898321, 30.5, 0), V(0, 0, 1), 1.25), math.radians(0), math.radians(180)), False)
sketch6.addGeometry(Part.LineSegment(V(58.648321, 30.5, 0), V(58.648321, 22.5, 0)), False)
sketch6.addGeometry(Part.ArcOfCircle(Part.Circle(V(59.898321, 22.5, 0), V(0, 0, 1), 1.25), math.radians(180), math.radians(360)), False)
sketch6.addGeometry(Part.LineSegment(V(61.148321, 22.5, 0), V(61.148321, 30.5, 0)), False)
sketch6.addGeometry(Part.ArcOfCircle(Part.Circle(V(59.898321, 30.5, 0), V(0, 0, 1), 1.25), math.radians(0), math.radians(180)), False)
sketch6.addGeometry(Part.LineSegment(V(63.648321, 30.5, 0), V(63.648321, 22.5, 0)), False)
sketch6.addGeometry(Part.ArcOfCircle(Part.Circle(V(64.898321, 22.5, 0), V(0, 0, 1), 1.25), math.radians(180), math.radians(360)), False)
sketch6.addGeometry(Part.LineSegment(V(66.148321, 22.5, 0), V(66.148321, 30.5, 0)), False)
sketch6.addGeometry(Part.ArcOfCircle(Part.Circle(V(64.898321, 30.5, 0), V(0, 0, 1), 1.25), math.radians(0), math.radians(180)), False)
sketch6.addGeometry(Part.LineSegment(V(33.648321, 30.5, 0), V(33.648321, 22.5, 0)), False)
sketch6.addGeometry(Part.ArcOfCircle(Part.Circle(V(34.898321, 22.5, 0), V(0, 0, 1), 1.25), math.radians(180), math.radians(360)), False)
sketch6.addGeometry(Part.LineSegment(V(36.148321, 22.5, 0), V(36.148321, 30.5, 0)), False)
sketch6.addGeometry(Part.ArcOfCircle(Part.Circle(V(34.898321, 30.5, 0), V(0, 0, 1), 1.25), math.radians(0), math.radians(180)), False)
sketch6.addGeometry(Part.LineSegment(V(53.648321, 30.5, 0), V(53.648321, 22.5, 0)), False)
sketch6.addGeometry(Part.ArcOfCircle(Part.Circle(V(54.898321, 22.5, 0), V(0, 0, 1), 1.25), math.radians(180), math.radians(360)), False)
sketch6.addGeometry(Part.LineSegment(V(56.148321, 22.5, 0), V(56.148321, 30.5, 0)), False)
sketch6.addGeometry(Part.ArcOfCircle(Part.Circle(V(54.898321, 30.5, 0), V(0, 0, 1), 1.25), math.radians(0), math.radians(180)), False)
sketch6.addGeometry(Part.LineSegment(V(68.648321, 30.5, 0), V(68.648321, 22.5, 0)), False)
sketch6.addGeometry(Part.ArcOfCircle(Part.Circle(V(69.898321, 22.5, 0), V(0, 0, 1), 1.25), math.radians(180), math.radians(360)), False)
sketch6.addGeometry(Part.LineSegment(V(71.148321, 22.5, 0), V(71.148321, 30.5, 0)), False)
sketch6.addGeometry(Part.ArcOfCircle(Part.Circle(V(69.898321, 30.5, 0), V(0, 0, 1), 1.25), math.radians(0), math.radians(180)), False)
sketch6.addGeometry(Part.LineSegment(V(76.148321, 22.5, 0), V(76.148321, 30.5, 0)), False)
sketch6.addGeometry(Part.ArcOfCircle(Part.Circle(V(74.898321, 30.5, 0), V(0, 0, 1), 1.25), math.radians(0), math.radians(180)), False)
sketch6.addGeometry(Part.LineSegment(V(73.648321, 30.5, 0), V(73.648321, 22.5, 0)), False)
sketch6.addGeometry(Part.ArcOfCircle(Part.Circle(V(74.898321, 22.5, 0), V(0, 0, 1), 1.25), math.radians(180), math.radians(360)), False)
sketch6.addGeometry(Part.LineSegment(V(78.648321, 30.5, 0), V(78.648321, 22.5, 0)), False)
sketch6.addGeometry(Part.ArcOfCircle(Part.Circle(V(79.898321, 22.5, 0), V(0, 0, 1), 1.25), math.radians(180), math.radians(360)), False)
sketch6.addGeometry(Part.LineSegment(V(81.148321, 22.5, 0), V(81.148321, 30.5, 0)), False)
sketch6.addGeometry(Part.ArcOfCircle(Part.Circle(V(79.898321, 30.5, 0), V(0, 0, 1), 1.25), math.radians(0), math.radians(180)), False)
sketch6.addConstraint(Sketcher.Constraint("Tangent", 0, 2, 1, 1))
sketch6.addConstraint(Sketcher.Constraint("Tangent", 1, 2, 2, 1))
sketch6.addConstraint(Sketcher.Constraint("Tangent", 2, 2, 3, 1))
sketch6.addConstraint(Sketcher.Constraint("Tangent", 3, 2, 0, 1))
sketch6.addConstraint(Sketcher.Constraint("Tangent", 4, 2, 5, 1))
sketch6.addConstraint(Sketcher.Constraint("Tangent", 5, 2, 6, 1))
sketch6.addConstraint(Sketcher.Constraint("Tangent", 6, 2, 7, 1))
sketch6.addConstraint(Sketcher.Constraint("Tangent", 7, 2, 4, 1))
sketch6.addConstraint(Sketcher.Constraint("Tangent", 8, 2, 9, 1))
sketch6.addConstraint(Sketcher.Constraint("Tangent", 9, 2, 10, 1))
sketch6.addConstraint(Sketcher.Constraint("Tangent", 10, 2, 11, 1))
sketch6.addConstraint(Sketcher.Constraint("Tangent", 11, 2, 8, 1))
sketch6.addConstraint(Sketcher.Constraint("Tangent", 12, 2, 13, 1))
sketch6.addConstraint(Sketcher.Constraint("Tangent", 13, 2, 14, 1))
sketch6.addConstraint(Sketcher.Constraint("Tangent", 14, 2, 15, 1))
sketch6.addConstraint(Sketcher.Constraint("Tangent", 15, 2, 12, 1))
sketch6.addConstraint(Sketcher.Constraint("Tangent", 16, 2, 17, 1))
sketch6.addConstraint(Sketcher.Constraint("Tangent", 17, 2, 18, 1))
sketch6.addConstraint(Sketcher.Constraint("Tangent", 18, 2, 19, 1))
sketch6.addConstraint(Sketcher.Constraint("Tangent", 19, 2, 16, 1))
sketch6.addConstraint(Sketcher.Constraint("Tangent", 20, 2, 21, 1))
sketch6.addConstraint(Sketcher.Constraint("Tangent", 21, 2, 22, 1))
sketch6.addConstraint(Sketcher.Constraint("Tangent", 22, 2, 23, 1))
sketch6.addConstraint(Sketcher.Constraint("Tangent", 23, 2, 20, 1))
sketch6.addConstraint(Sketcher.Constraint("Tangent", 24, 2, 25, 1))
sketch6.addConstraint(Sketcher.Constraint("Tangent", 25, 2, 26, 1))
sketch6.addConstraint(Sketcher.Constraint("Tangent", 26, 2, 27, 1))
sketch6.addConstraint(Sketcher.Constraint("Tangent", 27, 2, 24, 1))
sketch6.addConstraint(Sketcher.Constraint("Tangent", 28, 2, 29, 1))
sketch6.addConstraint(Sketcher.Constraint("Tangent", 29, 2, 30, 1))
sketch6.addConstraint(Sketcher.Constraint("Tangent", 30, 2, 31, 1))
sketch6.addConstraint(Sketcher.Constraint("Tangent", 31, 2, 28, 1))
sketch6.addConstraint(Sketcher.Constraint("Tangent", 32, 2, 33, 1))
sketch6.addConstraint(Sketcher.Constraint("Tangent", 33, 2, 34, 1))
sketch6.addConstraint(Sketcher.Constraint("Tangent", 34, 2, 35, 1))
sketch6.addConstraint(Sketcher.Constraint("Tangent", 35, 2, 32, 1))
sketch6.addConstraint(Sketcher.Constraint("Tangent", 36, 2, 37, 1))
sketch6.addConstraint(Sketcher.Constraint("Tangent", 37, 2, 38, 1))
sketch6.addConstraint(Sketcher.Constraint("Tangent", 38, 2, 39, 1))
sketch6.addConstraint(Sketcher.Constraint("Tangent", 39, 2, 36, 1))
sketch6.addConstraint(Sketcher.Constraint("Tangent", 40, 2, 41, 1))
sketch6.addConstraint(Sketcher.Constraint("Tangent", 41, 2, 42, 1))
sketch6.addConstraint(Sketcher.Constraint("Tangent", 42, 2, 43, 1))
sketch6.addConstraint(Sketcher.Constraint("Tangent", 43, 2, 40, 1))
sketch6.addConstraint(Sketcher.Constraint("Vertical", 0))
sketch6.addConstraint(Sketcher.Constraint("Vertical", 2))
sketch6.addConstraint(Sketcher.Constraint("Vertical", 4))
sketch6.addConstraint(Sketcher.Constraint("Vertical", 6))
sketch6.addConstraint(Sketcher.Constraint("Vertical", 8))
sketch6.addConstraint(Sketcher.Constraint("Vertical", 10))
sketch6.addConstraint(Sketcher.Constraint("Vertical", 12))
sketch6.addConstraint(Sketcher.Constraint("Vertical", 14))
sketch6.addConstraint(Sketcher.Constraint("Vertical", 16))
sketch6.addConstraint(Sketcher.Constraint("Vertical", 18))
sketch6.addConstraint(Sketcher.Constraint("Vertical", 20))
sketch6.addConstraint(Sketcher.Constraint("Vertical", 22))
sketch6.addConstraint(Sketcher.Constraint("Vertical", 24))
sketch6.addConstraint(Sketcher.Constraint("Vertical", 26))
sketch6.addConstraint(Sketcher.Constraint("Vertical", 28))
sketch6.addConstraint(Sketcher.Constraint("Vertical", 30))
sketch6.addConstraint(Sketcher.Constraint("Vertical", 32))
sketch6.addConstraint(Sketcher.Constraint("Vertical", 34))
sketch6.addConstraint(Sketcher.Constraint("Vertical", 36))
sketch6.addConstraint(Sketcher.Constraint("Vertical", 38))
sketch6.addConstraint(Sketcher.Constraint("Vertical", 40))
sketch6.addConstraint(Sketcher.Constraint("Vertical", 42))
sketch6.addConstraint(Sketcher.Constraint("Equal", 3, 5))
sketch6.addConstraint(Sketcher.Constraint("Equal", 7, 9))
sketch6.addConstraint(Sketcher.Constraint("Equal", 11, 13))
sketch6.addConstraint(Sketcher.Constraint("Equal", 15, 17))
sketch6.addConstraint(Sketcher.Constraint("Equal", 19, 21))
sketch6.addConstraint(Sketcher.Constraint("Equal", 23, 25))
sketch6.addConstraint(Sketcher.Constraint("Equal", 27, 29))
sketch6.addConstraint(Sketcher.Constraint("Equal", 31, 33))
sketch6.addConstraint(Sketcher.Constraint("Equal", 35, 37))
sketch6.addConstraint(Sketcher.Constraint("Equal", 39, 41))
sketch6.addConstraint(Sketcher.Constraint("Horizontal", 1, 3, 5, 3))
sketch6.addConstraint(Sketcher.Constraint("Horizontal", 3, 3, 7, 3))
sketch6.addConstraint(Sketcher.Constraint("Horizontal", 5, 3, 9, 3))
sketch6.addConstraint(Sketcher.Constraint("Horizontal", 7, 3, 11, 3))
sketch6.addConstraint(Sketcher.Constraint("Horizontal", 9, 3, 13, 3))
sketch6.addConstraint(Sketcher.Constraint("Horizontal", 11, 3, 15, 3))
sketch6.addConstraint(Sketcher.Constraint("Horizontal", 13, 3, 17, 3))
sketch6.addConstraint(Sketcher.Constraint("Horizontal", 15, 3, 19, 3))
sketch6.addConstraint(Sketcher.Constraint("Horizontal", 17, 3, 21, 3))
sketch6.addConstraint(Sketcher.Constraint("Horizontal", 19, 3, 23, 3))
sketch6.addConstraint(Sketcher.Constraint("Horizontal", 21, 3, 25, 3))
sketch6.addConstraint(Sketcher.Constraint("Horizontal", 23, 3, 27, 3))
sketch6.addConstraint(Sketcher.Constraint("Horizontal", 25, 3, 29, 3))
sketch6.addConstraint(Sketcher.Constraint("Horizontal", 27, 3, 31, 3))
sketch6.addConstraint(Sketcher.Constraint("Horizontal", 29, 3, 33, 3))
sketch6.addConstraint(Sketcher.Constraint("Horizontal", 31, 3, 35, 3))
sketch6.addConstraint(Sketcher.Constraint("Horizontal", 35, 3, 37, 3))
sketch6.addConstraint(Sketcher.Constraint("Horizontal", 33, 3, 39, 3))
sketch6.addConstraint(Sketcher.Constraint("Horizontal", 39, 3, 41, 3))
sketch6.addConstraint(Sketcher.Constraint("Horizontal", 37, 3, 43, 3))
sketch6.addConstraint(Sketcher.Constraint("DistanceY", 0, 2, 0, 1, 8.0))
sketch6.addConstraint(Sketcher.Constraint("Radius", 1, 1.25))
sketch6.addConstraint(Sketcher.Constraint("DistanceY", -1, 1, 1, 3, 22.5))
sketch6.addConstraint(Sketcher.Constraint("DistanceX", -1, 1, 1, 3, 29.898321))
sketch6.addConstraint(Sketcher.Constraint("DistanceX", -1, 1, 5, 3, 39.898321))
sketch6.addConstraint(Sketcher.Constraint("DistanceX", -1, 1, 9, 3, 44.898321))
sketch6.addConstraint(Sketcher.Constraint("DistanceX", -1, 1, 13, 3, 49.898321))
sketch6.addConstraint(Sketcher.Constraint("DistanceX", -1, 1, 17, 3, 59.898321))
sketch6.addConstraint(Sketcher.Constraint("DistanceX", -1, 1, 21, 3, 64.898321))
sketch6.addConstraint(Sketcher.Constraint("DistanceX", -1, 1, 25, 3, 34.898321))
sketch6.addConstraint(Sketcher.Constraint("DistanceX", -1, 1, 29, 3, 54.898321))
sketch6.addConstraint(Sketcher.Constraint("DistanceX", -1, 1, 33, 3, 69.898321))
sketch6.addConstraint(Sketcher.Constraint("DistanceX", -1, 1, 37, 3, 74.898321))
sketch6.addConstraint(Sketcher.Constraint("DistanceX", -1, 1, 41, 3, 79.898321))
sketch6.setExpression("Constraints[96]", "Params.sketch6_height")
sketch6.setExpression("Constraints[97]", "Params.sketch6_radius")
pocket3 = doc.addObject("PartDesign::Pocket", "Pocket002")
body.addObject(pocket3)
pocket3.Profile = sketch6
pocket3.setExpression("Length", "Params.pocket3_length")

# Sketch on XY plane
sketch7 = doc.addObject("Sketcher::SketchObject", "Sketch006")
body.addObject(sketch7)
sketch7.AttachmentSupport = (doc.XY_Plane, [""])
sketch7.MapMode = "FlatFace"
add_polygon(sketch7, [(7.58, 11.6), (7.58, 0), (99.43, 0), (99.43, 11.6)])  # lines 0-3
sketch7.addConstraint(Sketcher.Constraint("Vertical", 0))
sketch7.addConstraint(Sketcher.Constraint("Horizontal", 1))
sketch7.addConstraint(Sketcher.Constraint("Vertical", 2))
sketch7.addConstraint(Sketcher.Constraint("Horizontal", 3))
sketch7.addConstraint(Sketcher.Constraint("PointOnObject", 0, 2, -1))
sketch7.addConstraint(Sketcher.Constraint("DistanceY", 0, 2, 0, 1, 11.6))
sketch7.addConstraint(Sketcher.Constraint("DistanceX", 1, 1, 1, 2, 91.85))
sketch7.addConstraint(Sketcher.Constraint("DistanceX", -1, 1, 0, 2, 7.58))
sketch7.setExpression("Constraints[9]", "Params.sketch7_height")
sketch7.setExpression("Constraints[10]", "Params.sketch7_width")
pocket4 = doc.addObject("PartDesign::Pocket", "Pocket003")
body.addObject(pocket4)
pocket4.Profile = sketch7
pocket4.setExpression("Length", "Params.pocket4_length")

doc.recompute()
